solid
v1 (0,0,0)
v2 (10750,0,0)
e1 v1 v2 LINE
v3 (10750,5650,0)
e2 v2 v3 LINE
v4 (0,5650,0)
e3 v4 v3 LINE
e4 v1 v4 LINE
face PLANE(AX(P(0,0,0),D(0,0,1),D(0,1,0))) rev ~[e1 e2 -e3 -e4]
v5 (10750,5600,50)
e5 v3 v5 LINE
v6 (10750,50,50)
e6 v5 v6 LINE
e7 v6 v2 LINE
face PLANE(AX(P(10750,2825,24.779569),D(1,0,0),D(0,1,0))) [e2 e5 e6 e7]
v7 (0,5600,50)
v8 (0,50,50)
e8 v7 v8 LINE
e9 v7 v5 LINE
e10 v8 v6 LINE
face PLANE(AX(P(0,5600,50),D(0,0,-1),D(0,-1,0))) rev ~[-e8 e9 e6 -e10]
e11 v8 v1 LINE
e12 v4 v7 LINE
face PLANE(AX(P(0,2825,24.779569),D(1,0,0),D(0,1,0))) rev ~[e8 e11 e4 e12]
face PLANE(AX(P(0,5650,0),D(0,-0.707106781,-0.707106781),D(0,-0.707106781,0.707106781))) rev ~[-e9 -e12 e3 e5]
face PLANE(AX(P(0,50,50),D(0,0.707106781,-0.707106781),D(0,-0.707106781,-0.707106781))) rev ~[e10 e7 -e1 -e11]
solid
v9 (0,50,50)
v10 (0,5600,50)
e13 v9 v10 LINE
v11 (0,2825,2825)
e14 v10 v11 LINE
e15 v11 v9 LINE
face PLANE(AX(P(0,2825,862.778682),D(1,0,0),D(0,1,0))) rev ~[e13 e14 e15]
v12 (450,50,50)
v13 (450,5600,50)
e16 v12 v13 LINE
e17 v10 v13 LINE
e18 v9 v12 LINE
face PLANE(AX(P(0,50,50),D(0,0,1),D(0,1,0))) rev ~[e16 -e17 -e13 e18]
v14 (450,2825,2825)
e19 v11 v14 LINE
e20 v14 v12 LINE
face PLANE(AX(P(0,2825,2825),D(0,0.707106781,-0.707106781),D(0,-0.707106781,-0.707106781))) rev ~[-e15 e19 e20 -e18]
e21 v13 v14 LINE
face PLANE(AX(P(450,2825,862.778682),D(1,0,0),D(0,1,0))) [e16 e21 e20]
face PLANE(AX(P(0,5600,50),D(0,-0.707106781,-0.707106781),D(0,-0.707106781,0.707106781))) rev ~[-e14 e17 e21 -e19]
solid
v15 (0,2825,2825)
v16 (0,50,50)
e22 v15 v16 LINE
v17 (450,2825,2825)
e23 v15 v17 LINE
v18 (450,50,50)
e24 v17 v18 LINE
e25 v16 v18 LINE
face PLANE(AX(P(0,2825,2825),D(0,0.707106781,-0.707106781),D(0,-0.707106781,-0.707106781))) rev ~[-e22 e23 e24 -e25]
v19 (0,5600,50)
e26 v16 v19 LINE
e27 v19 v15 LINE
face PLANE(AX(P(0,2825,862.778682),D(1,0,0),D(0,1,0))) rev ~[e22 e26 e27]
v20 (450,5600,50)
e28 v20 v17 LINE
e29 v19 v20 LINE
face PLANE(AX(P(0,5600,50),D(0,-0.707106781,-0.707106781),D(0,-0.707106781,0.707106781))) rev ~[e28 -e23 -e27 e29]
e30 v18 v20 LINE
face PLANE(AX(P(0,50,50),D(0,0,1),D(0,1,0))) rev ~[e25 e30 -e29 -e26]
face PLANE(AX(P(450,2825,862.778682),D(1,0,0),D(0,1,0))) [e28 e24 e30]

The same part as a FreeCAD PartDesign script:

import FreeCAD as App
import Part
import Sketcher

V = App.Vector

doc = App.newDocument("Part")
body = doc.addObject("PartDesign::Body", "Body")

# Sketch on YZ plane
sketch1 = body.newObject("Sketcher::SketchObject", "Sketch")
sketch1.AttachmentSupport = (doc.getObject("YZ_Plane"), [""])
sketch1.MapMode = "FlatFace"
sketch1.addGeometry(Part.LineSegment(V(50, 50, 0), V(0, 0, 0)), False)
sketch1.addGeometry(Part.LineSegment(V(0, 0, 0), V(5650, 0, 0)), False)
sketch1.addGeometry(Part.LineSegment(V(5650, 0, 0), V(5600, 50, 0)), False)
sketch1.addGeometry(Part.LineSegment(V(5600, 50, 0), V(50, 50, 0)), False)
sketch1.addConstraint(Sketcher.Constraint("Coincident", 0, 2, 1, 1))
sketch1.addConstraint(Sketcher.Constraint("Coincident", 1, 2, 2, 1))
sketch1.addConstraint(Sketcher.Constraint("Coincident", 2, 2, 3, 1))
sketch1.addConstraint(Sketcher.Constraint("Coincident", 3, 2, 0, 1))
sketch1.addConstraint(Sketcher.Constraint("Horizontal", 1))
sketch1.addConstraint(Sketcher.Constraint("Horizontal", 3))
sketch1.addConstraint(Sketcher.Constraint("Coincident", 0, 2, -1, 1))
sketch1.addConstraint(Sketcher.Constraint("Perpendicular", 0, 2))
sketch1.addConstraint(Sketcher.Constraint("Equal", 0, 2))
sketch1.addConstraint(Sketcher.Constraint("DistanceX", 1, 1, 1, 2, 5650.0))
sketch1.addConstraint(Sketcher.Constraint("DistanceX", 3, 2, 3, 1, 5550.0))
pad1 = body.newObject("PartDesign::Pad", "Pad")
pad1.Profile = sketch1
pad1.Length = 10750
body2 = doc.addObject("PartDesign::Body", "Body001")

# Sketch on YZ plane
sketch2 = body2.newObject("Sketcher::SketchObject", "Sketch001")
sketch2.AttachmentSupport = (doc.getObject("YZ_Plane001"), [""])
sketch2.MapMode = "FlatFace"
sketch2.addGeometry(Part.LineSegment(V(2825, 2825, 0), V(50, 50, 0)), False)
sketch2.addGeometry(Part.LineSegment(V(50, 50, 0), V(5600, 50, 0)), False)
sketch2.addGeometry(Part.LineSegment(V(5600, 50, 0), V(2825, 2825, 0)), False)
sketch2.addConstraint(Sketcher.Constraint("Coincident", 0, 2, 1, 1))
sketch2.addConstraint(Sketcher.Constraint("Coincident", 1, 2, 2, 1))
sketch2.addConstraint(Sketcher.Constraint("Coincident", 2, 2, 0, 1))
sketch2.addConstraint(Sketcher.Constraint("Horizontal", 1))
sketch2.addConstraint(Sketcher.Constraint("Perpendicular", 0, 2))
sketch2.addConstraint(Sketcher.Constraint("Equal", 0, 2))
sketch2.addConstraint(Sketcher.Constraint("DistanceX", 1, 1, 1, 2, 5550.0))
sketch2.addConstraint(Sketcher.Constraint("DistanceX", -1, 1, 0, 2, 50.0))
sketch2.addConstraint(Sketcher.Constraint("DistanceY", -1, 1, 0, 2, 50.0))
pad2 = body2.newObject("PartDesign::Pad", "Pad001")
pad2.Profile = sketch2
pad2.Length = 450
body3 = doc.addObject("PartDesign::Body", "Body002")

# Sketch on YZ plane
sketch3 = body3.newObject("Sketcher::SketchObject", "Sketch002")
sketch3.AttachmentSupport = (doc.getObject("YZ_Plane002"), [""])
sketch3.MapMode = "FlatFace"
sketch3.addGeometry(Part.LineSegment(V(2825, 2825, 0), V(50, 50, 0)), False)
sketch3.addGeometry(Part.LineSegment(V(50, 50, 0), V(5600, 50, 0)), False)
sketch3.addGeometry(Part.LineSegment(V(5600, 50, 0), V(2825, 2825, 0)), False)
sketch3.addConstraint(Sketcher.Constraint("Coincident", 0, 2, 1, 1))
sketch3.addConstraint(Sketcher.Constraint("Coincident", 1, 2, 2, 1))
sketch3.addConstraint(Sketcher.Constraint("Coincident", 2, 2, 0, 1))
sketch3.addConstraint(Sketcher.Constraint("Horizontal", 1))
sketch3.addConstraint(Sketcher.Constraint("Perpendicular", 0, 2))
sketch3.addConstraint(Sketcher.Constraint("Equal", 0, 2))
sketch3.addConstraint(Sketcher.Constraint("DistanceX", 1, 1, 1, 2, 5550.0))
sketch3.addConstraint(Sketcher.Constraint("DistanceX", -1, 1, 0, 2, 50.0))
sketch3.addConstraint(Sketcher.Constraint("DistanceY", -1, 1, 0, 2, 50.0))
pad3 = body3.newObject("PartDesign::Pad", "Pad002")
pad3.Profile = sketch3
pad3.Length = 450

doc.recompute()
